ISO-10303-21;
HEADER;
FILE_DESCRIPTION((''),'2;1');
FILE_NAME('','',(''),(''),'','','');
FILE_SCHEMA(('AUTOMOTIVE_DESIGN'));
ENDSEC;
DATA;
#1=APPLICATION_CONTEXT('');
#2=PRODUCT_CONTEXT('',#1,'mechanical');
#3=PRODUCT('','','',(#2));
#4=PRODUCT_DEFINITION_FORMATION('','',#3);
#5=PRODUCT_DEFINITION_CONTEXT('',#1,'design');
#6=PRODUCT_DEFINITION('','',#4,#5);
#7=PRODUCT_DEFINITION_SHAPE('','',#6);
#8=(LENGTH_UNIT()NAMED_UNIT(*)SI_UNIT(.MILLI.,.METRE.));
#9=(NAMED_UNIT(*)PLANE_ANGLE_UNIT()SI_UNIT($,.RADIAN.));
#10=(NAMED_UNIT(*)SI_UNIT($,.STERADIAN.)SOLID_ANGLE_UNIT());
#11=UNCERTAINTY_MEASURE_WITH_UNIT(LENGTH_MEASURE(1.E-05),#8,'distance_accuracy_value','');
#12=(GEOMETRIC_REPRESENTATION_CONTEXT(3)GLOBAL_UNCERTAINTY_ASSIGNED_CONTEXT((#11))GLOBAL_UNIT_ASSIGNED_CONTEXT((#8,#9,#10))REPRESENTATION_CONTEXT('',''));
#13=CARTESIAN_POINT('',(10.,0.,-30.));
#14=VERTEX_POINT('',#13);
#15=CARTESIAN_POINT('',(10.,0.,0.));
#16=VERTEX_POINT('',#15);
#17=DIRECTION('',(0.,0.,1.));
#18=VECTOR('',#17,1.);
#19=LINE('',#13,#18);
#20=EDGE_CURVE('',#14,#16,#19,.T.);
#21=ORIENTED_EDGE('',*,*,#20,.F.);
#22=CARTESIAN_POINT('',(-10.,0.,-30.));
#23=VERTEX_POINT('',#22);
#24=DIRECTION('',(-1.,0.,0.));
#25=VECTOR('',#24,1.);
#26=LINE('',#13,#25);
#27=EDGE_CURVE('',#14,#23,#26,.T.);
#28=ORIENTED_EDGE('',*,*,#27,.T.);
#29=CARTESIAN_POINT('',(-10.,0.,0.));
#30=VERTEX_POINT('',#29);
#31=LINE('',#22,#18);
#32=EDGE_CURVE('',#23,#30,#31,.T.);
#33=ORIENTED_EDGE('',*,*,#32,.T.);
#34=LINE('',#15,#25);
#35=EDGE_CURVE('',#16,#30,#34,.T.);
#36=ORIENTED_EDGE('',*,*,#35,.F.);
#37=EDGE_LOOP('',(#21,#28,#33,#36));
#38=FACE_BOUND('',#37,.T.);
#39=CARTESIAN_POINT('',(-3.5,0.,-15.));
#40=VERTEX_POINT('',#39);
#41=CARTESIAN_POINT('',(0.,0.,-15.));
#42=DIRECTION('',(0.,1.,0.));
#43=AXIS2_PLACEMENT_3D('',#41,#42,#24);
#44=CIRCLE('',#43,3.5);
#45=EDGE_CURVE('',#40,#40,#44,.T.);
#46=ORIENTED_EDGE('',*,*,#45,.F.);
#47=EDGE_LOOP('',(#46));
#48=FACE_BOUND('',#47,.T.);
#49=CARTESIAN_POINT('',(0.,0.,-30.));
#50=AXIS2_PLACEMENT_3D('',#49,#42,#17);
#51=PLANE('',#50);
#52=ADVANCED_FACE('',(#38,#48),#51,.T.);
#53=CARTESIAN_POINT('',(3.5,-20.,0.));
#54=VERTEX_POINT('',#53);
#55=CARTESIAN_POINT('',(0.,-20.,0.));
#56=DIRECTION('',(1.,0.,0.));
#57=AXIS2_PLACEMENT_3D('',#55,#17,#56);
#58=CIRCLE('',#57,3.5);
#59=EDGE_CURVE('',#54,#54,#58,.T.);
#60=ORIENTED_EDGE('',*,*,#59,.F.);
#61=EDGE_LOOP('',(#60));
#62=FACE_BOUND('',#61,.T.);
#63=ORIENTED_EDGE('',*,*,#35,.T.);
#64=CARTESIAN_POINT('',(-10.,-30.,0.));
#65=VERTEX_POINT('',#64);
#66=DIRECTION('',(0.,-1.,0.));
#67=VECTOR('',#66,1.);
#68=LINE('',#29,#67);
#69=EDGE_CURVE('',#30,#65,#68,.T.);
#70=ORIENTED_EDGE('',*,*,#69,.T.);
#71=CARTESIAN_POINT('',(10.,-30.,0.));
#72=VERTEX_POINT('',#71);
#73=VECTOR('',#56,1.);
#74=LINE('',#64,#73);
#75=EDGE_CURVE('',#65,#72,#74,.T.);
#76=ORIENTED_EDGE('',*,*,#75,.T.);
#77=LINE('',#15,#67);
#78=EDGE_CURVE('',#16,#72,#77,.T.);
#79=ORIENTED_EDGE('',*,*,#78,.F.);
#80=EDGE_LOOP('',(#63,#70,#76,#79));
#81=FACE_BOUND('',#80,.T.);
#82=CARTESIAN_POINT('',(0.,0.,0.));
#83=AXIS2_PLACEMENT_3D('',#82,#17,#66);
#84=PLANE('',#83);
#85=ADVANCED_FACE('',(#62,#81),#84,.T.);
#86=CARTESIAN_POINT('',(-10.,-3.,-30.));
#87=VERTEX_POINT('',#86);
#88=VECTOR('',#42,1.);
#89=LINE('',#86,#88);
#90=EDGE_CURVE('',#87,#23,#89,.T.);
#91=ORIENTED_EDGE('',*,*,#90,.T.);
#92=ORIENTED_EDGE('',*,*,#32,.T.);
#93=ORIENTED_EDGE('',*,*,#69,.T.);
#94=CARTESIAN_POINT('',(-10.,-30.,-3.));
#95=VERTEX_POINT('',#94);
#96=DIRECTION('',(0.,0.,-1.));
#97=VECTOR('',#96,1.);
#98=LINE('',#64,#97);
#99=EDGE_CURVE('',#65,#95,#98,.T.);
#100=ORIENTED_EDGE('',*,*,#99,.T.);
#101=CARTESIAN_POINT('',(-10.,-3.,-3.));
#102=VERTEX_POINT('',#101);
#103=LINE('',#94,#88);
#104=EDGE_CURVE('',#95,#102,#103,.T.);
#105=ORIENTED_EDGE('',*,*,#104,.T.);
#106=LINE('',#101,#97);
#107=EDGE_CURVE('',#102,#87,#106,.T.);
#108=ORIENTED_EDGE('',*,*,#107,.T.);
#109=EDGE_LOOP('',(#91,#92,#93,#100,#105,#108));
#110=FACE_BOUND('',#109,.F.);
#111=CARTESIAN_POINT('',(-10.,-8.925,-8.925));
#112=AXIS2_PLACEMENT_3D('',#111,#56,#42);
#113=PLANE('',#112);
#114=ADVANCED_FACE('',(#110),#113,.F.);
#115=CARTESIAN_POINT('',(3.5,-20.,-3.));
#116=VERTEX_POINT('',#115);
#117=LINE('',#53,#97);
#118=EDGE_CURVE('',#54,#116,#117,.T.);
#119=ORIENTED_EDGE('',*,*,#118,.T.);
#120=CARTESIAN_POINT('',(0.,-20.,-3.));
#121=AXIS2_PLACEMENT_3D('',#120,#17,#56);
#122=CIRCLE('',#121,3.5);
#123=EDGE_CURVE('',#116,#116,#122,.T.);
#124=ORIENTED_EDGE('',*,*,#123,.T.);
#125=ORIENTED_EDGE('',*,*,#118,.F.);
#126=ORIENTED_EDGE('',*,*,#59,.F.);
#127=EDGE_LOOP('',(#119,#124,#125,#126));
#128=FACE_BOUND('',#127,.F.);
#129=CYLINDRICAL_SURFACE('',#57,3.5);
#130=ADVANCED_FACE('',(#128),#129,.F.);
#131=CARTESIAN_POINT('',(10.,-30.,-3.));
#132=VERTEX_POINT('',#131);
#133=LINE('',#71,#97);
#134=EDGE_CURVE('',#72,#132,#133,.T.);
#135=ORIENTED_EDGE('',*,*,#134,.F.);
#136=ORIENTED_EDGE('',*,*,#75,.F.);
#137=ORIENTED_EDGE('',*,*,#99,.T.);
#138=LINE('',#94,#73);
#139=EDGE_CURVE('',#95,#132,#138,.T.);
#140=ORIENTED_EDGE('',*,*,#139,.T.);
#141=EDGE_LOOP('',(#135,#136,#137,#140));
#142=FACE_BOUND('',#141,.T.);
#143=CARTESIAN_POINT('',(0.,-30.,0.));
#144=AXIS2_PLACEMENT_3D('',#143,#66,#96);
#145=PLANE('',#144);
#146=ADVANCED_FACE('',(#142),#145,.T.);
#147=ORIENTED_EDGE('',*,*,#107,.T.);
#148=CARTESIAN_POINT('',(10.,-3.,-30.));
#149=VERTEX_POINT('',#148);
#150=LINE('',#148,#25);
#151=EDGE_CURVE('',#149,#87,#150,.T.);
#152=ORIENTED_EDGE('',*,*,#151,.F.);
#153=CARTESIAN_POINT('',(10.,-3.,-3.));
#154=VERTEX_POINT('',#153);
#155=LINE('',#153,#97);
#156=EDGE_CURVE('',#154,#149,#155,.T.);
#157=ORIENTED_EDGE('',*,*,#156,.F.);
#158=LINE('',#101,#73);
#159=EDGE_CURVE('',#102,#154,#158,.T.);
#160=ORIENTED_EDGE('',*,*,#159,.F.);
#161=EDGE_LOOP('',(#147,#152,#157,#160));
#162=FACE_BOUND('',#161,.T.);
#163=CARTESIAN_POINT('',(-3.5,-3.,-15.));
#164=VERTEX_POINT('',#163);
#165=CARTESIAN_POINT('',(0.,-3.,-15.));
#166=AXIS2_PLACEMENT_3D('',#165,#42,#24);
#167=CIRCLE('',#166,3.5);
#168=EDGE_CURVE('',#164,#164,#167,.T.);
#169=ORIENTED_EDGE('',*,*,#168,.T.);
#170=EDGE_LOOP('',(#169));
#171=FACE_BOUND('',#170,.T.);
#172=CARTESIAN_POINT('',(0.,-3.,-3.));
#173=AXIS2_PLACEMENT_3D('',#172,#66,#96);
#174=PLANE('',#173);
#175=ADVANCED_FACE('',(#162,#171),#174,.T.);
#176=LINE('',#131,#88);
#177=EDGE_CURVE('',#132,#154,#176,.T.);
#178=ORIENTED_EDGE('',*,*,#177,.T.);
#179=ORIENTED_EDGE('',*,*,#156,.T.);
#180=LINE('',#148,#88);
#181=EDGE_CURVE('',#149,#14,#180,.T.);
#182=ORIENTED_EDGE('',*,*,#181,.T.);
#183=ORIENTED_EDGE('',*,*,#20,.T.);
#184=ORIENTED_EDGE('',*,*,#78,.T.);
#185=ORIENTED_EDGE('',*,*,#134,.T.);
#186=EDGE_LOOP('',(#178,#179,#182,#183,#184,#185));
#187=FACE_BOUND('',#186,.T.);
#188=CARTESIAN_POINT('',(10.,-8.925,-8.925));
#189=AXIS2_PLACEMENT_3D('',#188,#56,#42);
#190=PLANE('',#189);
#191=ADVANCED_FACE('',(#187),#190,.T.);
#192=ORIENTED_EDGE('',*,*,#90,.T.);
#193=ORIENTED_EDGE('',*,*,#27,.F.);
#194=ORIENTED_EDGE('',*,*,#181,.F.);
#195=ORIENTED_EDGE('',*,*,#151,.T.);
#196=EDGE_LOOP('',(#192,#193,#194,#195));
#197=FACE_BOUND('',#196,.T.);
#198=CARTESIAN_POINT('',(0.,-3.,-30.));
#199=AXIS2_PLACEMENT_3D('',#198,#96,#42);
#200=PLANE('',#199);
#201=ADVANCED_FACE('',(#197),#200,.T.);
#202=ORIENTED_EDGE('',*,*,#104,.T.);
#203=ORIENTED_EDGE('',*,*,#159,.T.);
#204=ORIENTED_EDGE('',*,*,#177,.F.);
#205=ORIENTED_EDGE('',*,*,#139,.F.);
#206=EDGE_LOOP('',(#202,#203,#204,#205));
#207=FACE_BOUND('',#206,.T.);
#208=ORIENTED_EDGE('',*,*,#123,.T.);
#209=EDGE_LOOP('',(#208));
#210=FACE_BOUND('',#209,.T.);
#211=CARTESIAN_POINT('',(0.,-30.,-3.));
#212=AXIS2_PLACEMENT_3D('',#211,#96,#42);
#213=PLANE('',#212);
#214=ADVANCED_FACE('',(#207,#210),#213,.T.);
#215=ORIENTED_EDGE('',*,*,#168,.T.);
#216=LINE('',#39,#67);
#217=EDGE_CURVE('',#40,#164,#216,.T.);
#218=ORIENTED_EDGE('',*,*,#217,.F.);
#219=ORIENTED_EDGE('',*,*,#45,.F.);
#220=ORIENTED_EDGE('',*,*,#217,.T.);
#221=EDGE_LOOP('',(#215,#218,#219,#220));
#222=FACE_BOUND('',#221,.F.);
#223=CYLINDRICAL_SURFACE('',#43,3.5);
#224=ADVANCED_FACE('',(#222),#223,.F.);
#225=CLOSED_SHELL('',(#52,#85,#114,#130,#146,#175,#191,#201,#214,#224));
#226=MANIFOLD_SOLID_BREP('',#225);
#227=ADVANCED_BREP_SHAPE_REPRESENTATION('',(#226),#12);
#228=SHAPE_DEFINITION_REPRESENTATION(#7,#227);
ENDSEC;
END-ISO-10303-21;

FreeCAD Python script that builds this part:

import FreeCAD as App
import Part
import Sketcher
from FreeCAD import Vector


def add_polygon(sketch, points):
    """Adds a closed chain of lines whose ends are joined by coincident constraints."""
    first, n = sketch.GeometryCount, len(points)
    for a, b in zip(points, points[1:] + points[:1]):
        sketch.addGeometry(Part.LineSegment(App.Vector(*a, 0), App.Vector(*b, 0)), False)
    for i in range(n):
        sketch.addConstraint(Sketcher.Constraint("Coincident", first + i, 2, first + (i + 1) % n, 1))

doc = App.newDocument("Part")
body = doc.addObject("PartDesign::Body", "Body")

# Sketch on YZ plane
sketch1 = body.newObject("Sketcher::SketchObject", "Sketch")
sketch1.AttachmentSupport = (doc.getObject("YZ_Plane"), [""])
sketch1.MapMode = "FlatFace"
add_polygon(sketch1, [(0, 0), (-30, 0), (-30, -3), (-3, -3), (-3, -30), (0, -30)])  # lines 0-5
sketch1.addConstraint([
    Sketcher.Constraint("Horizontal", 0),
    Sketcher.Constraint("Vertical", 1),
    Sketcher.Constraint("Horizontal", 2),
    Sketcher.Constraint("Vertical", 3),
    Sketcher.Constraint("Horizontal", 4),
    Sketcher.Constraint("Vertical", 5),
    Sketcher.Constraint("Coincident", 5, 2, -1, 1),
    Sketcher.Constraint("Equal", 4, 1),
    Sketcher.Constraint("Equal", 2, 3),
    Sketcher.Constraint("DistanceX", 0, 2, 0, 1, 30.0),
    Sketcher.Constraint("DistanceX", 2, 1, 2, 2, 27.0),
])
pad1 = body.newObject("PartDesign::Pad", "Pad")
pad1.Profile = sketch1
pad1.Length = 20
pad1.Midplane = True

# Sketch on XZ plane
sketch2 = body.newObject("Sketcher::SketchObject", "Sketch001")
sketch2.AttachmentSupport = (doc.getObject("XZ_Plane"), [""])
sketch2.MapMode = "FlatFace"
sketch2.addGeometry(Part.Circle(Vector(0, -15, 0), Vector(0, 0, 1), 3.5), False)
sketch2.addConstraint([
    Sketcher.Constraint("PointOnObject", 0, 3, -2),
    Sketcher.Constraint("Diameter", 0, 7.0),
    Sketcher.Constraint("DistanceY", 0, 3, -1, 1, 15.0),
])
pocket1 = body.newObject("PartDesign::Pocket", "Pocket")
pocket1.Profile = sketch2
pocket1.Type = "ThroughAll"
pocket1.Reversed = True

# Sketch on XY plane
sketch3 = body.newObject("Sketcher::SketchObject", "Sketch002")
sketch3.AttachmentSupport = (doc.getObject("XY_Plane"), [""])
sketch3.MapMode = "FlatFace"
sketch3.addGeometry(Part.Circle(Vector(0, -20, 0), Vector(0, 0, 1), 3.5), False)
sketch3.addConstraint([
    Sketcher.Constraint("PointOnObject", 0, 3, -2),
    Sketcher.Constraint("Diameter", 0, 7.0),
    Sketcher.Constraint("DistanceY", 0, 3, -1, 1, 20.0),
])
pocket2 = body.newObject("PartDesign::Pocket", "Pocket001")
pocket2.Profile = sketch3
pocket2.Type = "ThroughAll"

doc.recompute()
